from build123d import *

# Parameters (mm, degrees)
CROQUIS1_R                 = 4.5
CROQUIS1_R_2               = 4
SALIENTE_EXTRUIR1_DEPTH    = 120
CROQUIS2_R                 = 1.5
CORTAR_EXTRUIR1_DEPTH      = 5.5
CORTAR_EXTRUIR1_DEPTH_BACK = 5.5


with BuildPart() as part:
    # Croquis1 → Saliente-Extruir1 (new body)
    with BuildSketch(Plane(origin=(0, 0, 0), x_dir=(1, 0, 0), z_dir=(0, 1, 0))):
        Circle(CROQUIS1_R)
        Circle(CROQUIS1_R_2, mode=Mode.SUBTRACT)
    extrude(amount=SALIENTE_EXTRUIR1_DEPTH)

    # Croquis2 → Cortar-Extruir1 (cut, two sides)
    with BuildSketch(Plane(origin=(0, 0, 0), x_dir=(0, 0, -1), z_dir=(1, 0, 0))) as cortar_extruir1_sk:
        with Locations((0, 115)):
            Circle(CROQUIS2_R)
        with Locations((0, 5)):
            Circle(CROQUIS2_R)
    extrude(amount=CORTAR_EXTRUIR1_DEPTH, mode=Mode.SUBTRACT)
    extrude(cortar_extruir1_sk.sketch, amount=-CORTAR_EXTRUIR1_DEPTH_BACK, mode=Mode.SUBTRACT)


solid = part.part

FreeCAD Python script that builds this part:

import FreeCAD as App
import Part
import Sketcher

V = App.Vector

doc = App.newDocument("Part")
body = doc.addObject("PartDesign::Body", "Body")

# Sketch on XZ plane
sketch1 = body.newObject("Sketcher::SketchObject", "Sketch")
sketch1.AttachmentSupport = (doc.getObject("XZ_Plane"), [""])
sketch1.MapMode = "FlatFace"
sketch1.addGeometry(Part.Circle(V(0, 0, 0), V(0, 0, 1), 4.5), False)
sketch1.addGeometry(Part.Circle(V(0, 0, 0), V(0, 0, 1), 4), False)
sketch1.addConstraint(Sketcher.Constraint("Coincident", 0, 3, -1, 1))
sketch1.addConstraint(Sketcher.Constraint("Coincident", 1, 3, -1, 1))
sketch1.addConstraint(Sketcher.Constraint("Diameter", 0, 9.0))
sketch1.addConstraint(Sketcher.Constraint("Diameter", 1, 8.0))
pad1 = body.newObject("PartDesign::Pad", "Pad")
pad1.Profile = sketch1
pad1.Length = 120
pad1.Reversed = True

# Sketch on YZ plane
sketch2 = body.newObject("Sketcher::SketchObject", "Sketch001")
sketch2.AttachmentSupport = (doc.getObject("YZ_Plane"), [""])
sketch2.MapMode = "FlatFace"
sketch2.addGeometry(Part.Circle(V(115, 0, 0), V(0, 0, 1), 1.5), False)
sketch2.addGeometry(Part.Circle(V(5, 0, 0), V(0, 0, 1), 1.5), False)
sketch2.addConstraint(Sketcher.Constraint("Equal", 0, 1))
sketch2.addConstraint(Sketcher.Constraint("PointOnObject", 0, 3, -1))
sketch2.addConstraint(Sketcher.Constraint("PointOnObject", 1, 3, -1))
sketch2.addConstraint(Sketcher.Constraint("Diameter", 0, 3.0))
sketch2.addConstraint(Sketcher.Constraint("DistanceX", -1, 1, 0, 3, 115.0))
sketch2.addConstraint(Sketcher.Constraint("DistanceX", -1, 1, 1, 3, 5.0))
pocket1 = body.newObject("PartDesign::Pocket", "Pocket")
pocket1.Profile = sketch2
pocket1.Type = "ThroughAll"
pocket1.Midplane = True

doc.recompute()
